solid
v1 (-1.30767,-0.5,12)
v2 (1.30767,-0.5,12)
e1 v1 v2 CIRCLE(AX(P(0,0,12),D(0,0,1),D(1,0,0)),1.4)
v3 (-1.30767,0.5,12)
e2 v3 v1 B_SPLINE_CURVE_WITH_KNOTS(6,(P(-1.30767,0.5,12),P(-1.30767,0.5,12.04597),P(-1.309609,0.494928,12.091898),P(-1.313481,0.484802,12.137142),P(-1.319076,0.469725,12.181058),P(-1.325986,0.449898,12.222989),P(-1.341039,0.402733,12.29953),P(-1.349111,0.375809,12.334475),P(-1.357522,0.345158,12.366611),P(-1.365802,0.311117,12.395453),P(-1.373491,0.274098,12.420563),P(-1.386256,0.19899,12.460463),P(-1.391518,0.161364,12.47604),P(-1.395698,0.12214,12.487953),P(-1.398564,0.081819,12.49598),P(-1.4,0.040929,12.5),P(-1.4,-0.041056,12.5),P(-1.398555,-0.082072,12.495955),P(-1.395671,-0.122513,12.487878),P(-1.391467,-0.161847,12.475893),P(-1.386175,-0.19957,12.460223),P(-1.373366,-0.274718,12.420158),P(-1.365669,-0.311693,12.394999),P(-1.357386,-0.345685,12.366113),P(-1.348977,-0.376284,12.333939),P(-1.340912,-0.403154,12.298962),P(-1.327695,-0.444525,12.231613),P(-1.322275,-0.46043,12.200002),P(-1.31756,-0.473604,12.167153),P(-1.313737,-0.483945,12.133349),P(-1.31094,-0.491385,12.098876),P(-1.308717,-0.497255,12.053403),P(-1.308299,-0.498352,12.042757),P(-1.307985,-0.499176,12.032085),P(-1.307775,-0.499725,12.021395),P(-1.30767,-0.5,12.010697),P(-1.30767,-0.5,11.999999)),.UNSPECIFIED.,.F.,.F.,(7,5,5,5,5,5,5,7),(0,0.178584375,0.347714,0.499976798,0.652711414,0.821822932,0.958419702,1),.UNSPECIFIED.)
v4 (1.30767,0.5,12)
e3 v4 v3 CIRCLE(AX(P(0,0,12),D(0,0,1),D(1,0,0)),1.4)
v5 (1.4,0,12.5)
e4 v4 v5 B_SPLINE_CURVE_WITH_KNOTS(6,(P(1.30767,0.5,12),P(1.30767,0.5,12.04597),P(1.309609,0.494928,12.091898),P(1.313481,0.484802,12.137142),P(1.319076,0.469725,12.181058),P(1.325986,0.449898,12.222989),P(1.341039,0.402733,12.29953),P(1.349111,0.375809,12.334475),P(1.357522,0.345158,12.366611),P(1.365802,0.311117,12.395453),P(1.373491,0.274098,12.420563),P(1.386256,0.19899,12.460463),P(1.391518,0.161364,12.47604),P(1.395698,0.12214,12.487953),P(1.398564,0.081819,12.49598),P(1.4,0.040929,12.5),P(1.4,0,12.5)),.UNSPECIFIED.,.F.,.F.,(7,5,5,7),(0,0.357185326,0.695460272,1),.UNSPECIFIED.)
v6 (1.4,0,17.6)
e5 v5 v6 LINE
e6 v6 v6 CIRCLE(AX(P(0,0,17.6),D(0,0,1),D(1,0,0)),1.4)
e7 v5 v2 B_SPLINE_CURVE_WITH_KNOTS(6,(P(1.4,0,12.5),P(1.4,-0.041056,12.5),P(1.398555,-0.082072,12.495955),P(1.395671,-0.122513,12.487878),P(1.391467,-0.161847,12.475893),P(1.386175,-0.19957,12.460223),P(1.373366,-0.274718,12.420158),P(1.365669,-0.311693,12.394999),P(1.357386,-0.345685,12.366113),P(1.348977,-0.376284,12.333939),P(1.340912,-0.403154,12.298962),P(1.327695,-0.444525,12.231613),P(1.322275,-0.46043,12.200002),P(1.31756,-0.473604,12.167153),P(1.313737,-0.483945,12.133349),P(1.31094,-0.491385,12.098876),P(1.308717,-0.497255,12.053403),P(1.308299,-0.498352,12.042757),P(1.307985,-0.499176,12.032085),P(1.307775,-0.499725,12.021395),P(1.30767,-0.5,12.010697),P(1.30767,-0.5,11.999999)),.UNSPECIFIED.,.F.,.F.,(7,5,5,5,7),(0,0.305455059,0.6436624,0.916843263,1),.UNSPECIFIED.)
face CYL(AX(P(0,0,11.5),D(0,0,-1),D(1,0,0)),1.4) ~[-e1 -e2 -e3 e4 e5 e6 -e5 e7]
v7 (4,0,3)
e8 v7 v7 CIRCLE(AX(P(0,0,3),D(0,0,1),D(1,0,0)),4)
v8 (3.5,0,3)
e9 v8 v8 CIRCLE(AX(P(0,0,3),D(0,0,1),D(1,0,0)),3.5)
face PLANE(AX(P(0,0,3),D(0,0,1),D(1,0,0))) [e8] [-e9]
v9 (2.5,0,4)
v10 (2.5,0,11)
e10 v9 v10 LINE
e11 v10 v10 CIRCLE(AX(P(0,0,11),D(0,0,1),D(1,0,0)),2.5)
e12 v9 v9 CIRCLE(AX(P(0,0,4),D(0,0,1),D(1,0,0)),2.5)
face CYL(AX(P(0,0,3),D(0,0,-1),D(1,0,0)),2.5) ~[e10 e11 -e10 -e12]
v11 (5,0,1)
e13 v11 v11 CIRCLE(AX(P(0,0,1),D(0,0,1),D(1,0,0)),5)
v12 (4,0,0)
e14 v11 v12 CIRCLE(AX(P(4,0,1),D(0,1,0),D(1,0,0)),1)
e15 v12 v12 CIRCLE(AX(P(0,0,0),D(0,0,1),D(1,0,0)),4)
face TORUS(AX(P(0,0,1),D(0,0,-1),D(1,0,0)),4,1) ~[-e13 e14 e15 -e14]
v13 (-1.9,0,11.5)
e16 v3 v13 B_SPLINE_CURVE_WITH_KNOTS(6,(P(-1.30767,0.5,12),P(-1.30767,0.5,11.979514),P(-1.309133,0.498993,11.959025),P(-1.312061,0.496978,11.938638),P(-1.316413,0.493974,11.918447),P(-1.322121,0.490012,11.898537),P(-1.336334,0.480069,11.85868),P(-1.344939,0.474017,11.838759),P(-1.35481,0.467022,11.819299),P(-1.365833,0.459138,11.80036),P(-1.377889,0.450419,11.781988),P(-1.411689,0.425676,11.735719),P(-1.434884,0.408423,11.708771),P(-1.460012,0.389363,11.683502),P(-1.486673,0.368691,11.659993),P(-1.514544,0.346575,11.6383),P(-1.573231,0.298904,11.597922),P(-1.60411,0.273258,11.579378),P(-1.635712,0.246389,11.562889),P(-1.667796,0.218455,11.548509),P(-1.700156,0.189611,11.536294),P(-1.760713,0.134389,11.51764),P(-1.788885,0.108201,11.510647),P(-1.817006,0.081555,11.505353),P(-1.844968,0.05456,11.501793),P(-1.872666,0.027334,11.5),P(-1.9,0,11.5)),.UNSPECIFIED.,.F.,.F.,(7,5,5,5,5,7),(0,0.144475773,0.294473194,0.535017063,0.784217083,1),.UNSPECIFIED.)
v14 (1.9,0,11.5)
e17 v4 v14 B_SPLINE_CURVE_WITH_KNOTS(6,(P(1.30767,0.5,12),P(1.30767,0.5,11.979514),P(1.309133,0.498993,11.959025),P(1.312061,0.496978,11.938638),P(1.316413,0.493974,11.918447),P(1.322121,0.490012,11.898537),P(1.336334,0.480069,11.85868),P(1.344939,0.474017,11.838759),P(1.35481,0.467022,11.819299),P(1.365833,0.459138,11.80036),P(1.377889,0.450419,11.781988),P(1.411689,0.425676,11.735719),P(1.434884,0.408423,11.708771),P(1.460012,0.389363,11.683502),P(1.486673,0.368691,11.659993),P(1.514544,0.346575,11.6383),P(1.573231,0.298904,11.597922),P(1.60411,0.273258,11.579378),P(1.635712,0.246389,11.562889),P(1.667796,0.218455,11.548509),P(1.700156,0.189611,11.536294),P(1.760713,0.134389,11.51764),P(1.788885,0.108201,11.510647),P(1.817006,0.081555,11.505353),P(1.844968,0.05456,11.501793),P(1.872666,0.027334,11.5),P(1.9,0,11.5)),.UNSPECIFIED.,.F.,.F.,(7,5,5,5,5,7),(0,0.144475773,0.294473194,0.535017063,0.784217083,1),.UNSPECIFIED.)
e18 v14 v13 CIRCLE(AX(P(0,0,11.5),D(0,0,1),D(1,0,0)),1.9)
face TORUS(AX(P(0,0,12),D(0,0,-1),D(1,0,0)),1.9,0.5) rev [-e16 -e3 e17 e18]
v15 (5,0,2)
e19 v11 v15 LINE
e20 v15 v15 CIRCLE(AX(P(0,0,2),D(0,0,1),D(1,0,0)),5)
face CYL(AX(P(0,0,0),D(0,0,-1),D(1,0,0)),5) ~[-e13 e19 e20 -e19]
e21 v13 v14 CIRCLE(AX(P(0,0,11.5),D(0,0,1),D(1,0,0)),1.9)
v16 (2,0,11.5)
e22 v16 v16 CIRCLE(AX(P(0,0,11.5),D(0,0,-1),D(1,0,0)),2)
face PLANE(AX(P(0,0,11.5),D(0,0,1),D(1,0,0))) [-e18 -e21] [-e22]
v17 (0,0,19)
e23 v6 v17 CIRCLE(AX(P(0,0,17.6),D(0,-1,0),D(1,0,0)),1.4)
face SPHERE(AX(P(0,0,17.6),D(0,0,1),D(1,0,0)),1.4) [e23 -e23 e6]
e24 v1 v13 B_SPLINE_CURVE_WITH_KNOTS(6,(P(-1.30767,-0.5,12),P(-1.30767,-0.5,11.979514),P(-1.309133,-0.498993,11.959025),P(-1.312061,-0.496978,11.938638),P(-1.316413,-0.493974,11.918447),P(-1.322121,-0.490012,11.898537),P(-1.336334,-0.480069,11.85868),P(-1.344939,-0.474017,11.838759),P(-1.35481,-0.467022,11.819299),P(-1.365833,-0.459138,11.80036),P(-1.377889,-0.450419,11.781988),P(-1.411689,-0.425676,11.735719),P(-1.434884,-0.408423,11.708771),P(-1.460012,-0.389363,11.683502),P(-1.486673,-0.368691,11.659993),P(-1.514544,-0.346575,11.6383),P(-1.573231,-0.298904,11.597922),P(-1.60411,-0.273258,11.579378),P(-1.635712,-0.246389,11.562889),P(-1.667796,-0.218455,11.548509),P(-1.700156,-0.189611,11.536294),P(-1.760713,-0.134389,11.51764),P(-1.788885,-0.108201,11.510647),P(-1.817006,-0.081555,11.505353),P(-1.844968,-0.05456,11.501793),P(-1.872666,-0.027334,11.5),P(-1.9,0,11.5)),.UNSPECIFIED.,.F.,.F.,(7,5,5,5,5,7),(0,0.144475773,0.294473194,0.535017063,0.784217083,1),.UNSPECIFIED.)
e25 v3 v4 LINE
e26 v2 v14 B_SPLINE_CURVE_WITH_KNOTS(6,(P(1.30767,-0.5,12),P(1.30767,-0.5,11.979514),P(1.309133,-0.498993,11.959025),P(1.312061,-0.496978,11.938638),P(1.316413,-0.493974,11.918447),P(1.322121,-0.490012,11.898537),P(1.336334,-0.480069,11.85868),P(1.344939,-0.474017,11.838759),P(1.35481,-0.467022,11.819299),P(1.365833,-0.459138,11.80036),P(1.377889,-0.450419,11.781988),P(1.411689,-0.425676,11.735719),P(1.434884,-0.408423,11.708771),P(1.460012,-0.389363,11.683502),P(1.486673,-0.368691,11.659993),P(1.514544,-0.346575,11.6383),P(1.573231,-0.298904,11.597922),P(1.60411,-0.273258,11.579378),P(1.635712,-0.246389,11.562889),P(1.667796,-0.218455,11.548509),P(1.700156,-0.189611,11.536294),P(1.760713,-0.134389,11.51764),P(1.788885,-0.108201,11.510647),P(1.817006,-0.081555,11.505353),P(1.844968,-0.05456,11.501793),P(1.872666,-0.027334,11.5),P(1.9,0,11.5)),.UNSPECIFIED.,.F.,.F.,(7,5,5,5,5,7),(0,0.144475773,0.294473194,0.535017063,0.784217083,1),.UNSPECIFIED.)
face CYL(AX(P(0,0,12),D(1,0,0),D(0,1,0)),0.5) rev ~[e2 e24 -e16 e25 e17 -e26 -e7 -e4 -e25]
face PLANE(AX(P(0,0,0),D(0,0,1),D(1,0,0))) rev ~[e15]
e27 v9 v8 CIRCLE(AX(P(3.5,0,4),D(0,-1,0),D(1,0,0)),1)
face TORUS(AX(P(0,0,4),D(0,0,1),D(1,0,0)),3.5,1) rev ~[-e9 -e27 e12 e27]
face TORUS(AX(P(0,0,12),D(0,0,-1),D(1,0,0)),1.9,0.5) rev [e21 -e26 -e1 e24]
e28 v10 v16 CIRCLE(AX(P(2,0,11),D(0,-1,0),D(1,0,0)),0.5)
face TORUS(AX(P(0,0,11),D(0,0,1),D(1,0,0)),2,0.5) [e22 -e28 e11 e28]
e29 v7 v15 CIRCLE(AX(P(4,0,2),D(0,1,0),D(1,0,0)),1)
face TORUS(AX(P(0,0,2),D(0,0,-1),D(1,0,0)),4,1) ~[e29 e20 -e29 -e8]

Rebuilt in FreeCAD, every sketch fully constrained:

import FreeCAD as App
import Part
import Sketcher
Q = App.Units.Quantity


def edges_at(feature, points):
    """Names of the edges that pass closest to the given points."""
    edges = feature.Shape.Edges
    near = lambda p: min(range(len(edges)), key=lambda i: edges[i].distToShape(Part.Vertex(*p))[0])
    return sorted({f"Edge{near(p) + 1}" for p in points})

doc = App.newDocument("Part")
params = doc.addObject("Spreadsheet::Sheet", "Params")
for row, (alias, value) in enumerate([
    ("sketch1_diameter", "10 mm"),
    ("pad1_length", "3 mm"),
    ("sketch2_diameter", "5 mm"),
    ("pad2_length", "8.5 mm"),
    ("sketch3_diameter", "2.8 mm"),
    ("pad3_length", "7.5 mm"),
    ("fillet_radius", "1.4 mm"),
    ("fillet2_radius", "1 mm"),
    ("fillet3_radius", "0.5 mm"),
    ("sketch4_diameter", "1 mm"),
    ("pocket1_length", "5 mm"),
], start=1):
    params.set(f"A{row}", alias)
    params.set(f"B{row}", "=" + value)
    params.setAlias(f"B{row}", alias)

body = doc.addObject("PartDesign::Body", "Body")

sketch1 = body.newObject("Sketcher::SketchObject", "Sketch")
sketch1.AttachmentSupport = (doc.getObject("XY_Plane"), [""])
sketch1.MapMode = "FlatFace"
sketch1.addGeometry(Part.Circle(App.Vector(0, 0, 0), App.Vector(0, 0, 1), 5), False)
sketch1.addConstraint(Sketcher.Constraint("Coincident", 0, 3, -1, 1))
sketch1.addConstraint(Sketcher.Constraint("Diameter", 0, Q("10 mm")))
sketch1.setExpression("Constraints[1]", "Params.sketch1_diameter")
pad1 = body.newObject("PartDesign::Pad", "Pad")
pad1.Profile = sketch1
pad1.setExpression("Length", "Params.pad1_length")

sketch2 = body.newObject("Sketcher::SketchObject", "Sketch001")
sketch2.AttachmentSupport = (doc.getObject("XY_Plane"), [""])
sketch2.MapMode = "FlatFace"
sketch2.AttachmentOffset = App.Placement(App.Vector(0, 0, 3), App.Rotation())
sketch2.addGeometry(Part.Circle(App.Vector(0, 0, 0), App.Vector(0, 0, 1), 2.5), False)
sketch2.addConstraint(Sketcher.Constraint("Coincident", 0, 3, -1, 1))
sketch2.addConstraint(Sketcher.Constraint("Diameter", 0, Q("5 mm")))
sketch2.setExpression("Constraints[1]", "Params.sketch2_diameter")
pad2 = body.newObject("PartDesign::Pad", "Pad001")
pad2.Profile = sketch2
pad2.setExpression("Length", "Params.pad2_length")

sketch3 = body.newObject("Sketcher::SketchObject", "Sketch002")
sketch3.AttachmentSupport = (doc.getObject("XY_Plane"), [""])
sketch3.MapMode = "FlatFace"
sketch3.AttachmentOffset = App.Placement(App.Vector(0, 0, 11.5), App.Rotation())
sketch3.addGeometry(Part.Circle(App.Vector(0, 0, 0), App.Vector(0, 0, 1), 1.4), False)
sketch3.addConstraint(Sketcher.Constraint("Coincident", 0, 3, -1, 1))
sketch3.addConstraint(Sketcher.Constraint("Diameter", 0, Q("2.8 mm")))
sketch3.setExpression("Constraints[1]", "Params.sketch3_diameter")
pad3 = body.newObject("PartDesign::Pad", "Pad002")
pad3.Profile = sketch3
pad3.setExpression("Length", "Params.pad3_length")
doc.recompute()

fillet = body.newObject("PartDesign::Fillet", "Fillet")
fillet.Base = (pad3, edges_at(pad3, [(-1.4, 0, 19)]))
fillet.setExpression("Radius", "Params.fillet_radius")
doc.recompute()

fillet2 = body.newObject("PartDesign::Fillet", "Fillet001")
fillet2.Base = (fillet, edges_at(fillet, [(-2.5, 0, 3), (-5, 0, 0), (-5, 0, 3)]))
fillet2.setExpression("Radius", "Params.fillet2_radius")
doc.recompute()

fillet3 = body.newObject("PartDesign::Fillet", "Fillet002")
fillet3.Base = (fillet2, edges_at(fillet2, [(-1.4, 0, 11.5), (-2.5, 0, 11.5)]))
fillet3.setExpression("Radius", "Params.fillet3_radius")

sketch4 = body.newObject("Sketcher::SketchObject", "Sketch003")
sketch4.AttachmentSupport = (doc.getObject("YZ_Plane"), [""])
sketch4.MapMode = "FlatFace"
sketch4.addGeometry(Part.Circle(App.Vector(0, 12, 0), App.Vector(0, 0, 1), 0.5), False)
sketch4.addConstraint(Sketcher.Constraint("PointOnObject", 0, 3, -2))
sketch4.addConstraint(Sketcher.Constraint("Diameter", 0, Q("1 mm")))
sketch4.addConstraint(Sketcher.Constraint("DistanceY", -1, 1, 0, 3, Q("12 mm")))
sketch4.setExpression("Constraints[1]", "Params.sketch4_diameter")
pocket1 = body.newObject("PartDesign::Pocket", "Pocket")
pocket1.Profile = sketch4
pocket1.setExpression("Length", "Params.pocket1_length")
pocket1.Midplane = True

doc.recompute()
